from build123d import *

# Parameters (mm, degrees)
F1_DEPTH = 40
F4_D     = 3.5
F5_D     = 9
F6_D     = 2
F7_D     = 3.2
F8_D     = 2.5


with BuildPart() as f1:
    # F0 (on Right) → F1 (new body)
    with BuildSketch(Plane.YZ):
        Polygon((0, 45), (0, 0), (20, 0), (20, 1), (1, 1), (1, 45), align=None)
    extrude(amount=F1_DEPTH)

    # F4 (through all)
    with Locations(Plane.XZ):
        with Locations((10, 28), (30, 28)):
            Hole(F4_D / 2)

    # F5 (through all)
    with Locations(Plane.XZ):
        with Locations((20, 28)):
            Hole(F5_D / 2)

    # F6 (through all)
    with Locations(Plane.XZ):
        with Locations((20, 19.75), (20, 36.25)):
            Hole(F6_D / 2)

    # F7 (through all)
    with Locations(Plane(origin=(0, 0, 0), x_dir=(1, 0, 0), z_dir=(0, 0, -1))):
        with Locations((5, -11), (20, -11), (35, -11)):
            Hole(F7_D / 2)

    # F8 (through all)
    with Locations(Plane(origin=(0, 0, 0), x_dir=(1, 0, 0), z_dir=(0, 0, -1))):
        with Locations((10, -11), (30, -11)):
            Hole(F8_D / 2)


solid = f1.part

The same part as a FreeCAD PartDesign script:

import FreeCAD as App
import Part
import Sketcher
Q = App.Units.Quantity

doc = App.newDocument("Part")
body = doc.addObject("PartDesign::Body", "Body")

sketch1 = body.newObject("Sketcher::SketchObject", "Sketch")
sketch1.AttachmentSupport = (doc.getObject("YZ_Plane"), [""])
sketch1.MapMode = "FlatFace"
sketch1.addGeometry([
    Part.LineSegment(App.Vector(0, 45, 0), App.Vector(0, 0, 0)),
    Part.LineSegment(App.Vector(0, 0, 0), App.Vector(20, 0, 0)),
    Part.LineSegment(App.Vector(20, 0, 0), App.Vector(20, 1, 0)),
    Part.LineSegment(App.Vector(20, 1, 0), App.Vector(1, 1, 0)),
    Part.LineSegment(App.Vector(1, 1, 0), App.Vector(1, 45, 0)),
    Part.LineSegment(App.Vector(1, 45, 0), App.Vector(0, 45, 0)),
], False)
sketch1.addConstraint([
    Sketcher.Constraint("Coincident", 0, 2, 1, 1),
    Sketcher.Constraint("Coincident", 1, 2, 2, 1),
    Sketcher.Constraint("Coincident", 2, 2, 3, 1),
    Sketcher.Constraint("Coincident", 3, 2, 4, 1),
    Sketcher.Constraint("Coincident", 4, 2, 5, 1),
    Sketcher.Constraint("Coincident", 5, 2, 0, 1),
    Sketcher.Constraint("Vertical", 0),
    Sketcher.Constraint("Horizontal", 1),
    Sketcher.Constraint("Vertical", 2),
    Sketcher.Constraint("Horizontal", 3),
    Sketcher.Constraint("Vertical", 4),
    Sketcher.Constraint("Horizontal", 5),
    Sketcher.Constraint("Coincident", 0, 2, -1, 1),
    Sketcher.Constraint("Equal", 5, 2),
    Sketcher.Constraint("DistanceX", 1, 1, 1, 2, Q("20 mm")),
    Sketcher.Constraint("DistanceX", 3, 2, 3, 1, Q("19 mm")),
    Sketcher.Constraint("DistanceY", 0, 2, 0, 1, Q("45 mm")),
])
pad1 = body.newObject("PartDesign::Pad", "Pad")
pad1.Profile = sketch1
pad1.Length = 40

sketch2 = body.newObject("Sketcher::SketchObject", "Sketch001")
sketch2.AttachmentSupport = (doc.getObject("XZ_Plane"), [""])
sketch2.MapMode = "FlatFace"
sketch2.addGeometry([
    Part.Circle(App.Vector(10, 28, 0), App.Vector(0, 0, 1), 1.8),
    Part.Circle(App.Vector(30, 28, 0), App.Vector(0, 0, 1), 1.8),
], False)
sketch2.addConstraint([
    Sketcher.Constraint("Equal", 0, 1),
    Sketcher.Constraint("Horizontal", 0, 3, 1, 3),
    Sketcher.Constraint("Diameter", 0, Q("3.5 mm")),
    Sketcher.Constraint("DistanceX", -1, 1, 0, 3, Q("10 mm")),
    Sketcher.Constraint("DistanceY", -1, 1, 0, 3, Q("28 mm")),
    Sketcher.Constraint("DistanceX", -1, 1, 1, 3, Q("30 mm")),
])
doc.recompute()
hole = body.newObject("PartDesign::Hole", "Hole")
hole.Profile = sketch2
hole.ThreadType = "None"
hole.Diameter = 3.5
hole.DepthType = "ThroughAll"

sketch3 = body.newObject("Sketcher::SketchObject", "Sketch002")
sketch3.AttachmentSupport = (doc.getObject("XZ_Plane"), [""])
sketch3.MapMode = "FlatFace"
sketch3.addGeometry(Part.Circle(App.Vector(20, 28, 0), App.Vector(0, 0, 1), 4.5), False)
sketch3.addConstraint([
    Sketcher.Constraint("Diameter", 0, Q("9 mm")),
    Sketcher.Constraint("DistanceX", -1, 1, 0, 3, Q("20 mm")),
    Sketcher.Constraint("DistanceY", -1, 1, 0, 3, Q("28 mm")),
])
doc.recompute()
hole2 = body.newObject("PartDesign::Hole", "Hole001")
hole2.Profile = sketch3
hole2.ThreadType = "None"
hole2.Diameter = 9
hole2.DepthType = "ThroughAll"

sketch4 = body.newObject("Sketcher::SketchObject", "Sketch003")
sketch4.AttachmentSupport = (doc.getObject("XZ_Plane"), [""])
sketch4.MapMode = "FlatFace"
sketch4.addGeometry([
    Part.Circle(App.Vector(20, 19.8, 0), App.Vector(0, 0, 1), 1),
    Part.Circle(App.Vector(20, 36.2, 0), App.Vector(0, 0, 1), 1),
], False)
sketch4.addConstraint([
    Sketcher.Constraint("Equal", 0, 1),
    Sketcher.Constraint("Vertical", 0, 3, 1, 3),
    Sketcher.Constraint("Diameter", 0, Q("2 mm")),
    Sketcher.Constraint("DistanceX", -1, 1, 0, 3, Q("20 mm")),
    Sketcher.Constraint("DistanceY", 0, 3, 1, 3, Q("16.5 mm")),
    Sketcher.Constraint("DistanceY", -1, 1, 0, 3, Q("19.75 mm")),
])
doc.recompute()
hole3 = body.newObject("PartDesign::Hole", "Hole002")
hole3.Profile = sketch4
hole3.ThreadType = "None"
hole3.Diameter = 2
hole3.DepthType = "ThroughAll"

sketch5 = body.newObject("Sketcher::SketchObject", "Sketch004")
sketch5.AttachmentSupport = (doc.getObject("XY_Plane"), [""])
sketch5.MapMode = "FlatFace"
sketch5.addGeometry([
    Part.Circle(App.Vector(5, 11, 0), App.Vector(0, 0, 1), 1.6),
    Part.Circle(App.Vector(20, 11, 0), App.Vector(0, 0, 1), 1.6),
    Part.Circle(App.Vector(35, 11, 0), App.Vector(0, 0, 1), 1.6),
], False)
sketch5.addConstraint([
    Sketcher.Constraint("Equal", 0, 1),
    Sketcher.Constraint("Equal", 1, 2),
    Sketcher.Constraint("Horizontal", 0, 3, 1, 3),
    Sketcher.Constraint("Horizontal", 1, 3, 2, 3),
    Sketcher.Constraint("Diameter", 0, Q("3.2 mm")),
    Sketcher.Constraint("DistanceX", -1, 1, 0, 3, Q("5 mm")),
    Sketcher.Constraint("DistanceY", -1, 1, 0, 3, Q("11 mm")),
    Sketcher.Constraint("DistanceX", -1, 1, 1, 3, Q("20 mm")),
    Sketcher.Constraint("DistanceX", -1, 1, 2, 3, Q("35 mm")),
])
doc.recompute()
hole4 = body.newObject("PartDesign::Hole", "Hole003")
hole4.Profile = sketch5
hole4.ThreadType = "None"
hole4.Diameter = 3.2
hole4.DepthType = "ThroughAll"
hole4.Reversed = True

sketch6 = body.newObject("Sketcher::SketchObject", "Sketch005")
sketch6.AttachmentSupport = (doc.getObject("XY_Plane"), [""])
sketch6.MapMode = "FlatFace"
sketch6.addGeometry([
    Part.Circle(App.Vector(10, 11, 0), App.Vector(0, 0, 1), 1.2),
    Part.Circle(App.Vector(30, 11, 0), App.Vector(0, 0, 1), 1.2),
], False)
sketch6.addConstraint([
    Sketcher.Constraint("Equal", 0, 1),
    Sketcher.Constraint("Horizontal", 0, 3, 1, 3),
    Sketcher.Constraint("Diameter", 0, Q("2.5 mm")),
    Sketcher.Constraint("DistanceX", -1, 1, 0, 3, Q("10 mm")),
    Sketcher.Constraint("DistanceY", -1, 1, 0, 3, Q("11 mm")),
    Sketcher.Constraint("DistanceX", -1, 1, 1, 3, Q("30 mm")),
])
doc.recompute()
hole5 = body.newObject("PartDesign::Hole", "Hole004")
hole5.Profile = sketch6
hole5.ThreadType = "None"
hole5.Diameter = 2.5
hole5.DepthType = "ThroughAll"
hole5.Reversed = True

doc.recompute()
